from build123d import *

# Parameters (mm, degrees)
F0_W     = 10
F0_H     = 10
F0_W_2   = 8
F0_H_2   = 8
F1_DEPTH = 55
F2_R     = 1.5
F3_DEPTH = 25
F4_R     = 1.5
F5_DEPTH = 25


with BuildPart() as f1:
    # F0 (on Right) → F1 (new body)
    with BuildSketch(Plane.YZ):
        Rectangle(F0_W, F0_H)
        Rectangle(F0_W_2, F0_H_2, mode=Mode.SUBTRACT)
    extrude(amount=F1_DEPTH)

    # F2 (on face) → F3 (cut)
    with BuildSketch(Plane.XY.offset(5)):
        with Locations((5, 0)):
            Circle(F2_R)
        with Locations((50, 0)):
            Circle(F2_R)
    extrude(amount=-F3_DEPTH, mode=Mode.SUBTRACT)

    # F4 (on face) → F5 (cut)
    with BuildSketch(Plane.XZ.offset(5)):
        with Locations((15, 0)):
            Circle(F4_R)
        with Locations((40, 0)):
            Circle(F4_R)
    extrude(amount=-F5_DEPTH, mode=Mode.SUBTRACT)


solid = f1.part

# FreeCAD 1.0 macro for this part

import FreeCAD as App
import Part
import Sketcher

V = App.Vector


def add_polygon(sketch, points):
    """Adds a closed chain of lines whose ends are joined by coincident constraints."""
    first, n = sketch.GeometryCount, len(points)
    for a, b in zip(points, points[1:] + points[:1]):
        sketch.addGeometry(Part.LineSegment(App.Vector(*a, 0), App.Vector(*b, 0)), False)
    for i in range(n):
        sketch.addConstraint(Sketcher.Constraint("Coincident", first + i, 2, first + (i + 1) % n, 1))

doc = App.newDocument("Part")
body = doc.addObject("PartDesign::Body", "Body")

sketch1 = body.newObject("Sketcher::SketchObject", "Sketch")
sketch1.AttachmentSupport = (doc.getObject("YZ_Plane"), [""])
sketch1.MapMode = "FlatFace"
add_polygon(sketch1, [(-5, 5), (-5, -5), (5, -5), (5, 5)])
add_polygon(sketch1, [(4, -4), (-4, -4), (-4, 4), (4, 4)])
sketch1.addConstraint([
    Sketcher.Constraint("Vertical", 0),
    Sketcher.Constraint("Horizontal", 1),
    Sketcher.Constraint("Vertical", 2),
    Sketcher.Constraint("Horizontal", 3),
    Sketcher.Constraint("Horizontal", 4),
    Sketcher.Constraint("Vertical", 5),
    Sketcher.Constraint("Horizontal", 6),
    Sketcher.Constraint("Vertical", 7),
    Sketcher.Constraint("Symmetric", 0, 2, 2, 2, -1, 1),
    Sketcher.Constraint("Symmetric", 4, 2, 6, 2, -1, 1),
    Sketcher.Constraint("Equal", 3, 0),
    Sketcher.Constraint("Equal", 6, 5),
    Sketcher.Constraint("DistanceX", 1, 1, 1, 2, 10.0),
    Sketcher.Constraint("DistanceX", 4, 2, 4, 1, 8.0),
])
pad1 = body.newObject("PartDesign::Pad", "Pad")
pad1.Profile = sketch1
pad1.Length = 55

sketch2 = body.newObject("Sketcher::SketchObject", "Sketch001")
sketch2.AttachmentSupport = (doc.getObject("XY_Plane"), [""])
sketch2.MapMode = "FlatFace"
sketch2.AttachmentOffset = App.Placement(V(0, 0, 5), App.Rotation())
sketch2.addGeometry([
    Part.Circle(V(5, 0, 0), V(0, 0, 1), 1.5),
    Part.Circle(V(50, 0, 0), V(0, 0, 1), 1.5),
], False)
sketch2.addConstraint([
    Sketcher.Constraint("Equal", 0, 1),
    Sketcher.Constraint("PointOnObject", 0, 3, -1),
    Sketcher.Constraint("PointOnObject", 1, 3, -1),
    Sketcher.Constraint("Diameter", 0, 3.0),
    Sketcher.Constraint("DistanceX", -1, 1, 0, 3, 5.0),
    Sketcher.Constraint("DistanceX", -1, 1, 1, 3, 50.0),
])
pocket1 = body.newObject("PartDesign::Pocket", "Pocket")
pocket1.Profile = sketch2
pocket1.Length = 25

sketch3 = body.newObject("Sketcher::SketchObject", "Sketch002")
sketch3.AttachmentSupport = (doc.getObject("XZ_Plane"), [""])
sketch3.MapMode = "FlatFace"
sketch3.AttachmentOffset = App.Placement(V(0, 0, 5), App.Rotation())
sketch3.addGeometry([
    Part.Circle(V(15, 0, 0), V(0, 0, 1), 1.5),
    Part.Circle(V(40, 0, 0), V(0, 0, 1), 1.5),
], False)
sketch3.addConstraint([
    Sketcher.Constraint("Equal", 0, 1),
    Sketcher.Constraint("PointOnObject", 0, 3, -1),
    Sketcher.Constraint("PointOnObject", 1, 3, -1),
    Sketcher.Constraint("Diameter", 0, 3.0),
    Sketcher.Constraint("DistanceX", -1, 1, 0, 3, 15.0),
    Sketcher.Constraint("DistanceX", -1, 1, 1, 3, 40.0),
])
pocket2 = body.newObject("PartDesign::Pocket", "Pocket001")
pocket2.Profile = sketch3
pocket2.Length = 25

doc.recompute()
